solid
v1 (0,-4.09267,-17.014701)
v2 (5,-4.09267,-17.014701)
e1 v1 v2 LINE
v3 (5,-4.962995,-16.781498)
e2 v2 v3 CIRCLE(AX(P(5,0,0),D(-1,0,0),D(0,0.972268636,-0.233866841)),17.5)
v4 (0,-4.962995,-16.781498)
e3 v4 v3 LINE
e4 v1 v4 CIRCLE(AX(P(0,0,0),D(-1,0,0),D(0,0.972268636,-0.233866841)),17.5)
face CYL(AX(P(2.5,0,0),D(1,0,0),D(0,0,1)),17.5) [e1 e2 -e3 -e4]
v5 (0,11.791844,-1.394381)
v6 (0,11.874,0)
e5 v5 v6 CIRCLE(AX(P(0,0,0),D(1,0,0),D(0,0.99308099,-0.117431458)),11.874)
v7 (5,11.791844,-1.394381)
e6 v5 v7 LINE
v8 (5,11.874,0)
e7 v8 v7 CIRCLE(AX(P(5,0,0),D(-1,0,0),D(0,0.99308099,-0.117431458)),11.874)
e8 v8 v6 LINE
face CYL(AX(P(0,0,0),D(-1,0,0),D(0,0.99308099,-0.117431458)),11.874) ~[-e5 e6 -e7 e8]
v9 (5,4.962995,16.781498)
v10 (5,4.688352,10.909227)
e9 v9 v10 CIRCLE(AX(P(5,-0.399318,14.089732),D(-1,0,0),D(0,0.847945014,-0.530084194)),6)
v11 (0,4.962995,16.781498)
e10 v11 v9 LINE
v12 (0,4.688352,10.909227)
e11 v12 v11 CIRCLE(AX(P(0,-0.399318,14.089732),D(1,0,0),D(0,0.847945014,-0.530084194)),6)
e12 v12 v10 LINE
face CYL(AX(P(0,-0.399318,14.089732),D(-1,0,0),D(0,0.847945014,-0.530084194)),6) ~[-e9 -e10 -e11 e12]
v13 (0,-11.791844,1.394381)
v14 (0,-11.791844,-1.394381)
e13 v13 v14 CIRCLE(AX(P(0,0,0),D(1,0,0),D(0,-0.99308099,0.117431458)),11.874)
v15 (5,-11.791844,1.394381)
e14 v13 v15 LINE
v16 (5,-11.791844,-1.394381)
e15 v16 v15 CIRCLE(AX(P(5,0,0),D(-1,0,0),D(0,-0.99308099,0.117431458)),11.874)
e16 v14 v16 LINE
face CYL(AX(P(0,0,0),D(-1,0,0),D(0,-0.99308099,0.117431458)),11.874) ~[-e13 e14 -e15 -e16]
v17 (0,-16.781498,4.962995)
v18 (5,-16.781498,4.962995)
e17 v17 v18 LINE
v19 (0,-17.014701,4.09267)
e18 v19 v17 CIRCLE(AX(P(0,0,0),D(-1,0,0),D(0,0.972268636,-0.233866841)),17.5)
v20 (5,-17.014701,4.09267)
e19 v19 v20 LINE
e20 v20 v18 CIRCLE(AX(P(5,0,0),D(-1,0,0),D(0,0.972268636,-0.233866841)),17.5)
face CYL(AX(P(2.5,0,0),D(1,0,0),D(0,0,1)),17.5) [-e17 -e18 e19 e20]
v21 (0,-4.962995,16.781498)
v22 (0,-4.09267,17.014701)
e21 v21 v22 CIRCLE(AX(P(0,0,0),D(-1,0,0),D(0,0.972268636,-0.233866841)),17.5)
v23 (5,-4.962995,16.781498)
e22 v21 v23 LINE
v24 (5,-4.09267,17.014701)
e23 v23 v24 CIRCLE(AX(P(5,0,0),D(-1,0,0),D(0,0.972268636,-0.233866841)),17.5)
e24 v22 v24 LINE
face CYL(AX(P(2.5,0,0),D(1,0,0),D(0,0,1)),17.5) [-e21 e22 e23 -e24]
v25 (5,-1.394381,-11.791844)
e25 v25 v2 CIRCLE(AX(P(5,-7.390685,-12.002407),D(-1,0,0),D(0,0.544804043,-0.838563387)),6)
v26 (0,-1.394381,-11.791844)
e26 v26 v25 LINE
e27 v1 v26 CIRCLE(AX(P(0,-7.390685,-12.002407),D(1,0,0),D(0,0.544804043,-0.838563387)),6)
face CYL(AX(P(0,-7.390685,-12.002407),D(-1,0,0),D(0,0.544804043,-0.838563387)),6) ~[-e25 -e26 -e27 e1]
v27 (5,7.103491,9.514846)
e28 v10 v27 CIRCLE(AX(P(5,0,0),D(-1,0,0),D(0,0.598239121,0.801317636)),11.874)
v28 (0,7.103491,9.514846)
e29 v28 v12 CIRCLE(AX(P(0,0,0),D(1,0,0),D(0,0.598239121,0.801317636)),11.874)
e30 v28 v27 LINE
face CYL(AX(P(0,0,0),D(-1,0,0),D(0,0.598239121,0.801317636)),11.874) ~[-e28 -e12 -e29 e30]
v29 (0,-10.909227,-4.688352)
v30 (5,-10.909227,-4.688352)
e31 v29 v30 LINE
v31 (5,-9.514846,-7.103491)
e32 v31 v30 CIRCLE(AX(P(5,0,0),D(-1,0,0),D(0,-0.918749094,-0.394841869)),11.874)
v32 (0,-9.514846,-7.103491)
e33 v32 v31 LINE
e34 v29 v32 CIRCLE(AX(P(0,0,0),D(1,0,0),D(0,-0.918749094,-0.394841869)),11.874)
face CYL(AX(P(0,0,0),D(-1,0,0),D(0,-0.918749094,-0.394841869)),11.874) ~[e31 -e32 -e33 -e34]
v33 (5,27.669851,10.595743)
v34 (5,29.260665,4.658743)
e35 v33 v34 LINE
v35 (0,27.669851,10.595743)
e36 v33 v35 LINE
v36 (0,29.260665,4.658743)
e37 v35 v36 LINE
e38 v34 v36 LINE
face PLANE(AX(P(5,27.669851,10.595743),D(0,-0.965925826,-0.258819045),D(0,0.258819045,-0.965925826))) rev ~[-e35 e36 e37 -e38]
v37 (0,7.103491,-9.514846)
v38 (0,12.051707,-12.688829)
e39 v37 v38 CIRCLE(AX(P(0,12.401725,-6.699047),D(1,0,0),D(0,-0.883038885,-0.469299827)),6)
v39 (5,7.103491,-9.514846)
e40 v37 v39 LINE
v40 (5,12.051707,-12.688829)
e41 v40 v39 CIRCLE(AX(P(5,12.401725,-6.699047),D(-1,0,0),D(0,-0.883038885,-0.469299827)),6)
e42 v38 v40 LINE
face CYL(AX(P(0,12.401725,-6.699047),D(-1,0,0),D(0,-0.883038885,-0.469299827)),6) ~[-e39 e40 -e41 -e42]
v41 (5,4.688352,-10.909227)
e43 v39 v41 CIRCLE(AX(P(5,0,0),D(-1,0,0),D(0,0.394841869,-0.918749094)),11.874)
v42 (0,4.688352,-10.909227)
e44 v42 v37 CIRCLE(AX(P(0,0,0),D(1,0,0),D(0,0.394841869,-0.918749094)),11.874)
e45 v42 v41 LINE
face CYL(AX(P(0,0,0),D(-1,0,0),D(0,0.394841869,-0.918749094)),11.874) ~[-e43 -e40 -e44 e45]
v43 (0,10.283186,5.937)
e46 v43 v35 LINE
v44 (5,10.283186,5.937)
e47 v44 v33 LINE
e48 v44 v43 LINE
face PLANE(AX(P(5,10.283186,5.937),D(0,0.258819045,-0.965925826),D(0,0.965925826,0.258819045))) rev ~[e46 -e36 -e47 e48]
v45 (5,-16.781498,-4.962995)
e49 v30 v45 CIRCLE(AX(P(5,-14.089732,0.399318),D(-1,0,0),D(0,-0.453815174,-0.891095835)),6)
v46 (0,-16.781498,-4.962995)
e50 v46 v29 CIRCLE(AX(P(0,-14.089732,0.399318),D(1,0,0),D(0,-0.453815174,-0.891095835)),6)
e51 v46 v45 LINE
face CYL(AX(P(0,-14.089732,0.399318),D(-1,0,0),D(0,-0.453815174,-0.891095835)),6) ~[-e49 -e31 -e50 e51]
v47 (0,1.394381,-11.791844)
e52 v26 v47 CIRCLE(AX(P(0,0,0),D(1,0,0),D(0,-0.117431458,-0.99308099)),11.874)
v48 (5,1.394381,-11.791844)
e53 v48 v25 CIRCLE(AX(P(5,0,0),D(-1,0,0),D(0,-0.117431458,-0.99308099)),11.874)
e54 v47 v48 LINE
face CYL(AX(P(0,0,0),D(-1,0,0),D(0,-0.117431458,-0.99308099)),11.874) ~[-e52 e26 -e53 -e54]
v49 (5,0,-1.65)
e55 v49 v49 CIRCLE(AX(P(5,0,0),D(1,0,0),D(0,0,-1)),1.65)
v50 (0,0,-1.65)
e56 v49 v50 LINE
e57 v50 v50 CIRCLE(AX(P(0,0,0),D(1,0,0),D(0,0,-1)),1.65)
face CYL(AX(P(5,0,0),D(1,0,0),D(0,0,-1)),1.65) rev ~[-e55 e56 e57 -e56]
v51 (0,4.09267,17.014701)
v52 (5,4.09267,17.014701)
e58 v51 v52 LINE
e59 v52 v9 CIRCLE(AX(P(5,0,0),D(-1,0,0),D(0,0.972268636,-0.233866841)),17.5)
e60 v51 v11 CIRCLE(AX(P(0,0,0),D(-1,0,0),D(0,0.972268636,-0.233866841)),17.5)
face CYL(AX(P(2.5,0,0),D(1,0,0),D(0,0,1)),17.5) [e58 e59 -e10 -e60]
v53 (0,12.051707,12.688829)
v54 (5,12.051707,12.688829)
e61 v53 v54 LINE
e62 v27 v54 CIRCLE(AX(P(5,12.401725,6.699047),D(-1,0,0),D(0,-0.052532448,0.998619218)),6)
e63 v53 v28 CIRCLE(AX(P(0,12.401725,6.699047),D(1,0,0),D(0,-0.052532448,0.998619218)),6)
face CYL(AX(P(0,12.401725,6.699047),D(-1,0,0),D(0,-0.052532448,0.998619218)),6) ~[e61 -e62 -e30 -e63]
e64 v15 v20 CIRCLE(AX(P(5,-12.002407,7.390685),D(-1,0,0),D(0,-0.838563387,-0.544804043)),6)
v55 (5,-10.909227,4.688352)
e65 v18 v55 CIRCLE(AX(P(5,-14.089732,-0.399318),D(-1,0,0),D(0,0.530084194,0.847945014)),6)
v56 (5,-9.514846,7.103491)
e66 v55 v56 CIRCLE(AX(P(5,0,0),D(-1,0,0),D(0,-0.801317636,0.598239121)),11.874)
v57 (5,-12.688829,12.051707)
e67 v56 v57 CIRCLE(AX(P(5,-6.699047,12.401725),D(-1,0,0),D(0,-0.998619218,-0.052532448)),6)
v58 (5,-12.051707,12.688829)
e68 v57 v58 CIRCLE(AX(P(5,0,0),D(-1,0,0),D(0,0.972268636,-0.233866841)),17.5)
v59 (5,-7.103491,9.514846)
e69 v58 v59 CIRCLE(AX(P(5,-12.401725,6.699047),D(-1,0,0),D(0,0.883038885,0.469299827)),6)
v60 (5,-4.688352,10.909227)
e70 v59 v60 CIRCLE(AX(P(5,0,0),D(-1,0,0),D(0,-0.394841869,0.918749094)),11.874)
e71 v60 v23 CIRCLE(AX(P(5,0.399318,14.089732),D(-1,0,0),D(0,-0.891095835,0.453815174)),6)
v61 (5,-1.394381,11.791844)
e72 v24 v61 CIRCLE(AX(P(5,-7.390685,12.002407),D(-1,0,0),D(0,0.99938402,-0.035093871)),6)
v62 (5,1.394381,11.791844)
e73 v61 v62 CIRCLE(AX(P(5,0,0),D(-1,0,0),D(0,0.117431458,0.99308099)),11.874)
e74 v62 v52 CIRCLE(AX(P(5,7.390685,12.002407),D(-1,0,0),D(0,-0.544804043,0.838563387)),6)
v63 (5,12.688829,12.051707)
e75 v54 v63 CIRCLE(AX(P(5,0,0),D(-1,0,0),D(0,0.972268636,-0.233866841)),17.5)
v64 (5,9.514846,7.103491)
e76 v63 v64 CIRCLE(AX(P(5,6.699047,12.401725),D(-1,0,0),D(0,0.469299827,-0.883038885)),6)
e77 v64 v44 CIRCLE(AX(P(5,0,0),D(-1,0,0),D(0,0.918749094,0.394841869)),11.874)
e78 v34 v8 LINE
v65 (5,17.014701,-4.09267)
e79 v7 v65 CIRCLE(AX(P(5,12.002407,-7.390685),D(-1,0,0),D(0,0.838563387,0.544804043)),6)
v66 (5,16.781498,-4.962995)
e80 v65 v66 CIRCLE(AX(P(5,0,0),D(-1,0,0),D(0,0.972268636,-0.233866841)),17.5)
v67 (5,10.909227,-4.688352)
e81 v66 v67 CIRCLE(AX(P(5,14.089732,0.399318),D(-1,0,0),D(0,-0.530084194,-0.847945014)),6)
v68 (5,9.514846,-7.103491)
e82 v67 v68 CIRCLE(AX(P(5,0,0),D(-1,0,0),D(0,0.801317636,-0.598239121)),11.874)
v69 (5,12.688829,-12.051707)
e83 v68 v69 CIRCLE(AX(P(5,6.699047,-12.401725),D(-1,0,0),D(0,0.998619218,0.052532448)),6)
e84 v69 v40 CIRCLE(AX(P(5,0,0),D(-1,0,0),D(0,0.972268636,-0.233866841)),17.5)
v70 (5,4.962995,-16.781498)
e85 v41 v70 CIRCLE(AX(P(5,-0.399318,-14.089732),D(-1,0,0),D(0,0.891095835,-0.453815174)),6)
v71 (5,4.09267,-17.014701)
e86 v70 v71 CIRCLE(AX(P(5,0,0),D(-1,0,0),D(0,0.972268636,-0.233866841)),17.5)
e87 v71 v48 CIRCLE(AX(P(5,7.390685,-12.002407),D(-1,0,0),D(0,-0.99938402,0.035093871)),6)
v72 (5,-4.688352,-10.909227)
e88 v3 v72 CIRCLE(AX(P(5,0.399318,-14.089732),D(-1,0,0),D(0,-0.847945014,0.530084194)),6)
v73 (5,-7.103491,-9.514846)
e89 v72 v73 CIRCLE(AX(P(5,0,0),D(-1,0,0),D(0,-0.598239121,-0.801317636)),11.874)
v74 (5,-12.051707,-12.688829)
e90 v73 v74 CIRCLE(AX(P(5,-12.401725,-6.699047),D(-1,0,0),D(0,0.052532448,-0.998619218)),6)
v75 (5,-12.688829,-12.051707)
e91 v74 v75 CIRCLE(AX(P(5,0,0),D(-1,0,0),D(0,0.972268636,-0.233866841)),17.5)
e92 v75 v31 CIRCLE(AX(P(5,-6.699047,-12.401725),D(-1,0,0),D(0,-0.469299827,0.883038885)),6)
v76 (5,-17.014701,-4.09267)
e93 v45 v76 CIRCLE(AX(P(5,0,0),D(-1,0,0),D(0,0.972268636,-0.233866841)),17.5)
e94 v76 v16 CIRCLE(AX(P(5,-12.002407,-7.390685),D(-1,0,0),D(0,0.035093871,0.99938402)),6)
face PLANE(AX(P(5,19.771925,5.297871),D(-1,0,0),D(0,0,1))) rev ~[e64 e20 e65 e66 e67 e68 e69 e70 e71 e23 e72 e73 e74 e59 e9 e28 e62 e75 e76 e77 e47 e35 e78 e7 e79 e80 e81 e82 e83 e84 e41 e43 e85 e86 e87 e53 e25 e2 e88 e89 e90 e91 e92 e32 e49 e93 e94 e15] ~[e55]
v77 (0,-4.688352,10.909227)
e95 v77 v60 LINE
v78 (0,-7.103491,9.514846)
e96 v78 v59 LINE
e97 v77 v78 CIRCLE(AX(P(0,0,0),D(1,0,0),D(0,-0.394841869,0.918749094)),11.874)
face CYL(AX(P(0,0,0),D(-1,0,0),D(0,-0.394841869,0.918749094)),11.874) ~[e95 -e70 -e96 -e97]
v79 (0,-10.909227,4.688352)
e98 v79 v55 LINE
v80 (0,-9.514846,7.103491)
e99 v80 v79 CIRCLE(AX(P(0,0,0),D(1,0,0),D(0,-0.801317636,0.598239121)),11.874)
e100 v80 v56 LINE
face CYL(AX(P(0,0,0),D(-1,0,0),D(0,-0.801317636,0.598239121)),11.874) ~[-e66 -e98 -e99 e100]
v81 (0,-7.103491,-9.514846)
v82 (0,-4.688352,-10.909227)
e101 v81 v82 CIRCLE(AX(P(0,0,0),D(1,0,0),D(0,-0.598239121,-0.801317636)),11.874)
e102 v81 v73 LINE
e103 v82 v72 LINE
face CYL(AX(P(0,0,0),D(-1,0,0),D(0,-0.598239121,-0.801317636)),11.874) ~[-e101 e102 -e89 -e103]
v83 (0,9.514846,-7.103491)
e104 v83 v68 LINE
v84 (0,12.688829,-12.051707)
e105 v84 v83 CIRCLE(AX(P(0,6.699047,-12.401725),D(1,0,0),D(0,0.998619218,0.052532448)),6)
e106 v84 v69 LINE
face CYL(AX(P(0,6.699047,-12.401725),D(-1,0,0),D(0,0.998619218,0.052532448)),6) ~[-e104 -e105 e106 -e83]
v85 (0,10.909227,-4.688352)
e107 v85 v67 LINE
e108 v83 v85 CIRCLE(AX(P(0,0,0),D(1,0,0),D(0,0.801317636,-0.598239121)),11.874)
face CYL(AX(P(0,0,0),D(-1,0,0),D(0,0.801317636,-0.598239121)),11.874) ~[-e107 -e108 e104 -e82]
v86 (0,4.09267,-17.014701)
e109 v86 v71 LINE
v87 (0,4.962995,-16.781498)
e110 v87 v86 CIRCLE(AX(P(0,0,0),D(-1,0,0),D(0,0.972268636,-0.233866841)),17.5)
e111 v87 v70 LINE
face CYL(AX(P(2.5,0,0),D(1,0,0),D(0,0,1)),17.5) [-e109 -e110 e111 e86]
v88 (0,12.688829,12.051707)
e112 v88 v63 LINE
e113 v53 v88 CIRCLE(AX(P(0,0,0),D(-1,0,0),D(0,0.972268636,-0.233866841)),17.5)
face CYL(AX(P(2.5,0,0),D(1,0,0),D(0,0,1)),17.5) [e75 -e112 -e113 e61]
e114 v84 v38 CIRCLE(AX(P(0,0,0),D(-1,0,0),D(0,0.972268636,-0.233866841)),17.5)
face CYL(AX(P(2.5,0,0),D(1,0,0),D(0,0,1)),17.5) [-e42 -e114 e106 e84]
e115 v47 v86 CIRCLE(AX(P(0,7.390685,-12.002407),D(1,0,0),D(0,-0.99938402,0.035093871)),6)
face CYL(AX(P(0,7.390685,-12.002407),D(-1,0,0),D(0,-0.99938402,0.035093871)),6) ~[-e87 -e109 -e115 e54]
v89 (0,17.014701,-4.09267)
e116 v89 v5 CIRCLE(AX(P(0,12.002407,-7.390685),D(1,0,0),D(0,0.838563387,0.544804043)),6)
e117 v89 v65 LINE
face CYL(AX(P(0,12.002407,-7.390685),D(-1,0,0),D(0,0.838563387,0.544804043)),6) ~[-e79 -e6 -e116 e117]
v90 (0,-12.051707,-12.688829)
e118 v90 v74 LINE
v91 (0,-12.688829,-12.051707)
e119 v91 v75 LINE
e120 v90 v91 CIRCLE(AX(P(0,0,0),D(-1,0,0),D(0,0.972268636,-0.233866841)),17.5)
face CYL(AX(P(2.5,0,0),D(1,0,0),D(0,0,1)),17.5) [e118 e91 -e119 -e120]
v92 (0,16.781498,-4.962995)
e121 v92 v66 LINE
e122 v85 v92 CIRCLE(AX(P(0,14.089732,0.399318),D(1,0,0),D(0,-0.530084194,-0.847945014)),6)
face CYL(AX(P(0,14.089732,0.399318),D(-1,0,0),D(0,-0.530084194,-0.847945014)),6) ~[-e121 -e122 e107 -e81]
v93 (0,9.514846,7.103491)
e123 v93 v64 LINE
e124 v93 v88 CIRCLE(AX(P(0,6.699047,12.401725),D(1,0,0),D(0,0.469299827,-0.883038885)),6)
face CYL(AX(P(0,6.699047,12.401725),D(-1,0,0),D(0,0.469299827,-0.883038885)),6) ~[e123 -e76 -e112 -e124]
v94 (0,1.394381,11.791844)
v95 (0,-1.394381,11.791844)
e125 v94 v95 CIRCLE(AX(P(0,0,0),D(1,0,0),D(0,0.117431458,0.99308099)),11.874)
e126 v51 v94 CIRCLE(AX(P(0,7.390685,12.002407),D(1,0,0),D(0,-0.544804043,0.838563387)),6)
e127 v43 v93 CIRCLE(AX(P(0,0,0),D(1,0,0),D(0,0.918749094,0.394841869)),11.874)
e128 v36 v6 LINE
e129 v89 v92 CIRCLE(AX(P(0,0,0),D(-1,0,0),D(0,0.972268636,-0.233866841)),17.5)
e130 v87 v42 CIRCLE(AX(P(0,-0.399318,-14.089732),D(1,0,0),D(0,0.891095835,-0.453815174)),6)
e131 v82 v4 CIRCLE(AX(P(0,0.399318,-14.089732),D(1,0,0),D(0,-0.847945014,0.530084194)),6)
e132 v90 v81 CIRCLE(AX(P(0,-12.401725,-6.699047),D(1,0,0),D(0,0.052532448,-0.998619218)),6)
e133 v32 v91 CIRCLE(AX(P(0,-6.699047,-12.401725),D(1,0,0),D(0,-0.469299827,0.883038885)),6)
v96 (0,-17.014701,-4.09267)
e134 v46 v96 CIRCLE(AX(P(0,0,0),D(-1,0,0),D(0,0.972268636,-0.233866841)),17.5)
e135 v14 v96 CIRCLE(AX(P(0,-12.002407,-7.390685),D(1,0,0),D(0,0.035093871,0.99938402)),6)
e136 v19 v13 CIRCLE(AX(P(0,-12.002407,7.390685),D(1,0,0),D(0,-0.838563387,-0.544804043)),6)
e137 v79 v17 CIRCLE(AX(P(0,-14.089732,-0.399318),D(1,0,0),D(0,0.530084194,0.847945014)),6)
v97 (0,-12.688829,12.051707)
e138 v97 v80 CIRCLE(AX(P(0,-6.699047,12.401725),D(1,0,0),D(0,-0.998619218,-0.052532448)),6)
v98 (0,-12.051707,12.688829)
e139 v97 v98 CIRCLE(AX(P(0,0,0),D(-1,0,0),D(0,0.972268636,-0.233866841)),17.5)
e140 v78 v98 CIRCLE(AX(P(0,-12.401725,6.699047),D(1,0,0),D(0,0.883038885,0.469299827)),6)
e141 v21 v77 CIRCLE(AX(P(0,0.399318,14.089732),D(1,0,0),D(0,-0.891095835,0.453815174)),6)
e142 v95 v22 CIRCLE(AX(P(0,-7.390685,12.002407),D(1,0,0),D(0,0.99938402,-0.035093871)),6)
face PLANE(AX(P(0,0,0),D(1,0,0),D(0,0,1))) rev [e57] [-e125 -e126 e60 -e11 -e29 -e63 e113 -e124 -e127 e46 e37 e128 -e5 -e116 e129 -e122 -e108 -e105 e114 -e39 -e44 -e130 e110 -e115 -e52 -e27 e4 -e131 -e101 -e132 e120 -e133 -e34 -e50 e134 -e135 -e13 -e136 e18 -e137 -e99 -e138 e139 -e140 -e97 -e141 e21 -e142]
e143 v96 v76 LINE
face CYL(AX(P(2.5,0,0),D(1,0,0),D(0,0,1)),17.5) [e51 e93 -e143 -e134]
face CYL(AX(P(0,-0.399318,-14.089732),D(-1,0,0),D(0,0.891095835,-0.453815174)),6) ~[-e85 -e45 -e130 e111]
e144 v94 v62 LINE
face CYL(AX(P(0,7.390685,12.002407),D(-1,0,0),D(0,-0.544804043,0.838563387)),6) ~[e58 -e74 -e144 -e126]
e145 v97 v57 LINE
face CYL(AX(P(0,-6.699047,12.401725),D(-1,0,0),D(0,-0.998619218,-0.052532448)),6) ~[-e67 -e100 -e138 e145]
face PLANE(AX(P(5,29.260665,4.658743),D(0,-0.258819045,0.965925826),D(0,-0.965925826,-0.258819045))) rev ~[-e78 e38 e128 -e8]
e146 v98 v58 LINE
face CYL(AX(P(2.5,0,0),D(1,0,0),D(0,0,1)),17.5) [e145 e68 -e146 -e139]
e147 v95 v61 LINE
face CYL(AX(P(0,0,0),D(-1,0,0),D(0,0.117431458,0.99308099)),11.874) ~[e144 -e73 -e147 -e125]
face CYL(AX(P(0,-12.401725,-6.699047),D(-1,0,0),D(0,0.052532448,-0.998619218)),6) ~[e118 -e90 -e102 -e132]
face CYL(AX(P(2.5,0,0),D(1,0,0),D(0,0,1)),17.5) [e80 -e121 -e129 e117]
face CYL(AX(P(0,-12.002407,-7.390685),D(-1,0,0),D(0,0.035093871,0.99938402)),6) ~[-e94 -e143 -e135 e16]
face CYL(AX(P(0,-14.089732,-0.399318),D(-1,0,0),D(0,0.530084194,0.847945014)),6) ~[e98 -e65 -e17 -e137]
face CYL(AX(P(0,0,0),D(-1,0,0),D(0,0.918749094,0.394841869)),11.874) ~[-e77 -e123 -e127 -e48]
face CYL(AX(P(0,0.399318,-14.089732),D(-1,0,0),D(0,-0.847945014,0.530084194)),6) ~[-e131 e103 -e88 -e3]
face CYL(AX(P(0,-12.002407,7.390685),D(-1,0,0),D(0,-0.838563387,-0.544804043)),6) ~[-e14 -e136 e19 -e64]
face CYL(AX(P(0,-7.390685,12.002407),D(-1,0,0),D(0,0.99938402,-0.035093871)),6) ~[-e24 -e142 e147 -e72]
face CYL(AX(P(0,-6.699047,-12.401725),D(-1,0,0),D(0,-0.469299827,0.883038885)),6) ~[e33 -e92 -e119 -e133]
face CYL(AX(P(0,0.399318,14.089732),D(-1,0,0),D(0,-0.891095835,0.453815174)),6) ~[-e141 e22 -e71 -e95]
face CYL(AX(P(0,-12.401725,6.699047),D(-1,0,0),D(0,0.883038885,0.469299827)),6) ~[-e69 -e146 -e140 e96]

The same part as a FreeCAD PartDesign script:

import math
import FreeCAD as App
import Part
import Sketcher
from FreeCAD import Vector
Q = App.Units.Quantity


def add_polygon(sketch, points):
    """Adds a closed chain of lines whose ends are joined by coincident constraints."""
    first, n = sketch.GeometryCount, len(points)
    for a, b in zip(points, points[1:] + points[:1]):
        sketch.addGeometry(Part.LineSegment(App.Vector(*a, 0), App.Vector(*b, 0)), False)
    for i in range(n):
        sketch.addConstraint(Sketcher.Constraint("Coincident", first + i, 2, first + (i + 1) % n, 1))

doc = App.newDocument("Part")
body = doc.addObject("PartDesign::Body", "Body")

sketch1 = body.newObject("Sketcher::SketchObject", "Sketch")
sketch1.AttachmentSupport = (doc.getObject("XZ_Plane"), [""])
sketch1.MapMode = "FlatFace"
add_polygon(sketch1, [(0, -18), (0, 0), (5, 0), (5, -18)])
sketch1.addConstraint([
    Sketcher.Constraint("Vertical", 0),
    Sketcher.Constraint("Horizontal", 1),
    Sketcher.Constraint("Vertical", 2),
    Sketcher.Constraint("Horizontal", 3),
    Sketcher.Constraint("Coincident", 0, 2, -1, 1),
    Sketcher.Constraint("DistanceX", 1, 1, 1, 2, 5.0),
    Sketcher.Constraint("DistanceY", 0, 1, 0, 2, 17.5),
])
revolution = body.newObject("PartDesign::Revolution", "Revolution")
revolution.Profile = sketch1
revolution.ReferenceAxis = (sketch1, ["H_Axis"])
revolution.Angle = 360

sketch2 = body.newObject("Sketcher::SketchObject", "Sketch001")
sketch2.AttachmentSupport = (doc.getObject("YZ_Plane"), [""])
sketch2.MapMode = "FlatFace"
sketch2.addGeometry([
    Part.ArcOfCircle(Part.Circle(Vector(0, 0, 0), Vector(0, 0, 1), 11.9), math.radians(-6.74), math.radians(6.74)),
    Part.ArcOfCircle(Part.Circle(Vector(12, -7.4, 0), Vector(0, 0, 1), 6), math.radians(33), math.radians(92)),
    Part.ArcOfCircle(Part.Circle(Vector(0, 0, 0), Vector(0, 0, 1), 17.5), math.radians(-14), math.radians(14)),
    Part.ArcOfCircle(Part.Circle(Vector(12, 7.4, 0), Vector(0, 0, 1), 6), math.radians(-92), math.radians(-33)),
], False)
sketch2.addConstraint([
    Sketcher.Constraint("Coincident", 0, 1, 1, 2),
    Sketcher.Constraint("Coincident", 1, 1, 2, 1),
    Sketcher.Constraint("Coincident", 2, 2, 3, 2),
    Sketcher.Constraint("Coincident", 3, 1, 0, 2),
    Sketcher.Constraint("Coincident", 0, 3, -1, 1),
    Sketcher.Constraint("Coincident", 2, 3, -1, 1),
    Sketcher.Constraint("Equal", 1, 3),
    Sketcher.Constraint("Symmetric", 1, 3, 3, 3, -1),
    Sketcher.Constraint("Radius", 1, 6.0),
    Sketcher.Constraint("Radius", 0, 11.874),
    Sketcher.Constraint("Radius", 2, 17.5254),
    Sketcher.Constraint("DistanceY", 0, 1, -1, 1, 1.394381),
    Sketcher.Constraint("DistanceY", 1, 1, -1, 1, 4.121861),
])
pocket1 = body.newObject("PartDesign::Pocket", "Pocket")
pocket1.Profile = sketch2
pocket1.Type = "ThroughAll"
pocket1.Reversed = True
doc.recompute()

polarpattern = body.newObject("PartDesign::PolarPattern", "PolarPattern")
polarpattern.Originals = [pocket1]
polarpattern.Axis = (doc.getObject("X_Axis"), [""])
polarpattern.Angle = 360
polarpattern.Occurrences = 12
body.Tip = polarpattern

sketch3 = body.newObject("Sketcher::SketchObject", "Sketch002")
sketch3.AttachmentSupport = (doc.getObject("YZ_Plane"), [""])
sketch3.MapMode = "FlatFace"
sketch3.addGeometry(Part.Circle(Vector(0, 0, 0), Vector(0, 0, 1), 4), False)
sketch3.addConstraint([
    Sketcher.Constraint("Coincident", 0, 3, -1, 1),
    Sketcher.Constraint("Diameter", 0, 8.0),
])
pocket2 = body.newObject("PartDesign::Pocket", "Pocket001")
pocket2.Profile = sketch3
pocket2.Length = 100.000102
pocket2.Midplane = True

sketch4 = body.newObject("Sketcher::SketchObject", "Sketch003")
sketch4.AttachmentSupport = (doc.getObject("YZ_Plane"), [""])
sketch4.MapMode = "FlatFace"
sketch4.AttachmentOffset = App.Placement(Vector(0, 0, 5), App.Rotation())
add_polygon(sketch4, [(10, 6), (12, 0), (29, 5), (28, 11)])
sketch4.addConstraint([
    Sketcher.Constraint("PointOnObject", 0, 2, -1),
    Sketcher.Constraint("Perpendicular", 0, 1),
    Sketcher.Constraint("Perpendicular", 1, 2),
    Sketcher.Constraint("Perpendicular", 2, 3),
    Sketcher.Constraint("Angle", 0, Q("-75 deg")),
    Sketcher.Constraint("Distance", 1, 18.0),
    Sketcher.Constraint("DistanceX", -1, 1, 0, 2, 11.874),
    Sketcher.Constraint("DistanceY", -1, 1, 3, 2, 5.937),
])
pad1 = body.newObject("PartDesign::Pad", "Pad")
pad1.Profile = sketch4
pad1.Length = 5
pad1.Reversed = True

sketch5 = body.newObject("Sketcher::SketchObject", "Sketch004")
sketch5.AttachmentSupport = (doc.getObject("YZ_Plane"), [""])
sketch5.MapMode = "FlatFace"
sketch5.AttachmentOffset = App.Placement(Vector(0, 0, 5), App.Rotation())
sketch5.addGeometry([
    Part.Circle(Vector(0, 0, 0), Vector(0, 0, 1), 5.8),
    Part.Circle(Vector(0, 0, 0), Vector(0, 0, 1), 1.6),
], False)
sketch5.addConstraint([
    Sketcher.Constraint("Coincident", 0, 3, -1, 1),
    Sketcher.Constraint("Coincident", 1, 3, -1, 1),
    Sketcher.Constraint("Diameter", 1, 3.3),
    Sketcher.Constraint("Diameter", 0, 11.574967),
])
pad2 = body.newObject("PartDesign::Pad", "Pad001")
pad2.Profile = sketch5
pad2.Length = 5
pad2.Reversed = True

doc.recompute()
